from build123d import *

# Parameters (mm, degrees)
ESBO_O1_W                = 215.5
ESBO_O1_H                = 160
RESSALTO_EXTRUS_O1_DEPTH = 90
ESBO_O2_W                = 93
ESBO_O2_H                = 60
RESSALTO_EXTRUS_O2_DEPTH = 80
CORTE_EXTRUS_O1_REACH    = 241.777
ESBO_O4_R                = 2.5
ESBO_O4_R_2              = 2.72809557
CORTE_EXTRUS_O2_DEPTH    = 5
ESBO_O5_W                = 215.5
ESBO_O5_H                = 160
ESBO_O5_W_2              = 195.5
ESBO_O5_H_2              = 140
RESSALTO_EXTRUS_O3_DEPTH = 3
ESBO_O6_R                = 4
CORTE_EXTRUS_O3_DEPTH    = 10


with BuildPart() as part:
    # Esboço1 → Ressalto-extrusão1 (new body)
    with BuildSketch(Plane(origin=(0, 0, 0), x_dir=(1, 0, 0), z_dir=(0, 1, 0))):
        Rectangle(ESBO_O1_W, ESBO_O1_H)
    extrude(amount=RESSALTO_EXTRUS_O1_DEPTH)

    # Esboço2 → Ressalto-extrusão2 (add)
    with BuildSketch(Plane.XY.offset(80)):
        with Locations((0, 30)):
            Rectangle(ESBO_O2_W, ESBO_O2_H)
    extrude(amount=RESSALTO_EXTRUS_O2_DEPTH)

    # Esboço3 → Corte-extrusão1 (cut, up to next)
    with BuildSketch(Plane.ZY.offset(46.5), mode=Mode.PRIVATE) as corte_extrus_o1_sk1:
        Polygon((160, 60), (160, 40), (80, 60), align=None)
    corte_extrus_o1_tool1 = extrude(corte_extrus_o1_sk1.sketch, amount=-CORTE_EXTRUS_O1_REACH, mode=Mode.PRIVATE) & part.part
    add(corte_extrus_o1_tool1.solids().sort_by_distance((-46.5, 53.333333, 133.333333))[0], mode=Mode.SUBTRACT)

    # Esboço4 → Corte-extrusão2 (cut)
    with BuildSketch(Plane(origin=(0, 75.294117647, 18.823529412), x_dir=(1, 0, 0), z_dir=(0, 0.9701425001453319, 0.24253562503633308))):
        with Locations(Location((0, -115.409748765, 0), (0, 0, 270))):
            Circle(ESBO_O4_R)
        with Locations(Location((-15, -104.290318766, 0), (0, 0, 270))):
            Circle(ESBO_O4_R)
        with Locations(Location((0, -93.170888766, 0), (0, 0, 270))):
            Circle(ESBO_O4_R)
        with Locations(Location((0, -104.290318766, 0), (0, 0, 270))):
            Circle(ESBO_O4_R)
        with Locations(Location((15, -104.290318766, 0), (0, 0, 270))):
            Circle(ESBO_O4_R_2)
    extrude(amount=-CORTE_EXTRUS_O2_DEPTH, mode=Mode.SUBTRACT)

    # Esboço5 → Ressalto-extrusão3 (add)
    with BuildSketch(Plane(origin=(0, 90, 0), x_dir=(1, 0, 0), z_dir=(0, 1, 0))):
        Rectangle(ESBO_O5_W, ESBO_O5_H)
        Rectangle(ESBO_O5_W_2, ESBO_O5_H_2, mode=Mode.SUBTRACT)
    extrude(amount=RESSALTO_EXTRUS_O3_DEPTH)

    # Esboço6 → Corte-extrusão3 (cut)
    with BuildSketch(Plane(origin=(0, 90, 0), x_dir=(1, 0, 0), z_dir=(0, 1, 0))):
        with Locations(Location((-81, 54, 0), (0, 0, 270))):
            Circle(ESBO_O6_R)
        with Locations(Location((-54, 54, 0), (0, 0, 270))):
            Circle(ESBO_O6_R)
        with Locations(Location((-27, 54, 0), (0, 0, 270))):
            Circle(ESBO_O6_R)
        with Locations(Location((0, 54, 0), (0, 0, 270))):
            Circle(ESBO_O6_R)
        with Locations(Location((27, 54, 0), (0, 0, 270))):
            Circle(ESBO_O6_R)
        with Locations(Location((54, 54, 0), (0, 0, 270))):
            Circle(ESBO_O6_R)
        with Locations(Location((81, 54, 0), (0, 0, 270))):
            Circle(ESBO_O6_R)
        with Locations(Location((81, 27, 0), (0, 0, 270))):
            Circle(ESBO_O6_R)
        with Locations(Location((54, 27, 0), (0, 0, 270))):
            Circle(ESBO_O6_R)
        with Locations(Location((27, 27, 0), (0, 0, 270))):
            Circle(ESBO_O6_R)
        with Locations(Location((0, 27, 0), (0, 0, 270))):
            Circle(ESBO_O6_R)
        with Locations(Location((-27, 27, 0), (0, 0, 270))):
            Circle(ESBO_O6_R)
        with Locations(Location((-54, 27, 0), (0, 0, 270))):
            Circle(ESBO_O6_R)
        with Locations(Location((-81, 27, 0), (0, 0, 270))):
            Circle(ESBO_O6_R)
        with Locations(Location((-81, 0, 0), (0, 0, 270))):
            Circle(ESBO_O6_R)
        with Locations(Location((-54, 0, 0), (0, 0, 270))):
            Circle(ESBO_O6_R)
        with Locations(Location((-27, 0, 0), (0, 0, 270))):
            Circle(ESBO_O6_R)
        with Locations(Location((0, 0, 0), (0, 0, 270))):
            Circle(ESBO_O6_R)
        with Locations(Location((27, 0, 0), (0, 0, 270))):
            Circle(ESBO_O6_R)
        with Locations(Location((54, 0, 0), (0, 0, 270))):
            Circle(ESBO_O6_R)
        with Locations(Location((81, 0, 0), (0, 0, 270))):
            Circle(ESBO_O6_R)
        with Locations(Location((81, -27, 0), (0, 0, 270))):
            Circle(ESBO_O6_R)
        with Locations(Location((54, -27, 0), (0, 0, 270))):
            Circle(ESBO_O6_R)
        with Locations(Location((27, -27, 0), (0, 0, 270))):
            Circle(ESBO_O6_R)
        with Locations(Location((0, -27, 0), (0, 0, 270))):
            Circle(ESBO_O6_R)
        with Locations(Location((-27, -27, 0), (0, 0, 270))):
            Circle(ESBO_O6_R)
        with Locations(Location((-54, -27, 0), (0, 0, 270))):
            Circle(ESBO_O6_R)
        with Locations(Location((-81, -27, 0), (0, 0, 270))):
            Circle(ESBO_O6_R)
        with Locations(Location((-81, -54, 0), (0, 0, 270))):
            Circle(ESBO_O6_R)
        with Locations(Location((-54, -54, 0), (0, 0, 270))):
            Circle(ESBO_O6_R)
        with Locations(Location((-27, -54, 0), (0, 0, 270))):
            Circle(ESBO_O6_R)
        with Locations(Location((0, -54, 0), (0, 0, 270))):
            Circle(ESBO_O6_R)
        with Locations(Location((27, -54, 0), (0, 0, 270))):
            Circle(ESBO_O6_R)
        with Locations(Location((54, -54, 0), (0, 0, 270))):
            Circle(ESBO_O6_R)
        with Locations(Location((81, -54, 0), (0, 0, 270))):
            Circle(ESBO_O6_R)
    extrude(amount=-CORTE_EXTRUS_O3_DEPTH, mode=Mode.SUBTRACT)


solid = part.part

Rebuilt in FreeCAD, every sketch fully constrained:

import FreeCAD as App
import Part
import Sketcher
Q = App.Units.Quantity


def add_polygon(sketch, points):
    """Adds a closed chain of lines whose ends are joined by coincident constraints."""
    first, n = sketch.GeometryCount, len(points)
    for a, b in zip(points, points[1:] + points[:1]):
        sketch.addGeometry(Part.LineSegment(App.Vector(*a, 0), App.Vector(*b, 0)), False)
    for i in range(n):
        sketch.addConstraint(Sketcher.Constraint("Coincident", first + i, 2, first + (i + 1) % n, 1))

doc = App.newDocument("Part")
body = doc.addObject("PartDesign::Body", "Body")

sketch1 = body.newObject("Sketcher::SketchObject", "Sketch")
sketch1.AttachmentSupport = (doc.getObject("XZ_Plane"), [""])
sketch1.MapMode = "FlatFace"
add_polygon(sketch1, [(-108, -80), (-108, 80), (108, 80), (108, -80)])
sketch1.addConstraint([
    Sketcher.Constraint("Vertical", 0),
    Sketcher.Constraint("Horizontal", 1),
    Sketcher.Constraint("Vertical", 2),
    Sketcher.Constraint("Horizontal", 3),
    Sketcher.Constraint("Symmetric", 0, 2, 2, 2, -1, 1),
    Sketcher.Constraint("DistanceY", 0, 1, 0, 2, Q("160 mm")),
    Sketcher.Constraint("DistanceX", 1, 1, 1, 2, Q("215.5 mm")),
])
pad1 = body.newObject("PartDesign::Pad", "Pad")
pad1.Profile = sketch1
pad1.Length = 90
pad1.Reversed = True

sketch2 = body.newObject("Sketcher::SketchObject", "Sketch001")
sketch2.AttachmentSupport = (doc.getObject("XY_Plane"), [""])
sketch2.MapMode = "FlatFace"
sketch2.AttachmentOffset = App.Placement(App.Vector(0, 0, 80), App.Rotation())
add_polygon(sketch2, [(-46, 60), (-46, 0), (46, 0), (46, 60)])
sketch2.addConstraint([
    Sketcher.Constraint("Vertical", 0),
    Sketcher.Constraint("Horizontal", 1),
    Sketcher.Constraint("Vertical", 2),
    Sketcher.Constraint("Horizontal", 3),
    Sketcher.Constraint("Symmetric", 0, 2, 1, 2, -1, 1),
    Sketcher.Constraint("DistanceX", 1, 1, 1, 2, Q("93 mm")),
    Sketcher.Constraint("DistanceY", 0, 2, 0, 1, Q("60 mm")),
])
pad2 = body.newObject("PartDesign::Pad", "Pad001")
pad2.Profile = sketch2
pad2.Length = 80

sketch3 = body.newObject("Sketcher::SketchObject", "Sketch002")
sketch3.AttachmentSupport = (doc.getObject("YZ_Plane"), [""])
sketch3.MapMode = "FlatFace"
sketch3.AttachmentOffset = App.Placement(App.Vector(0, 0, -46.5), App.Rotation())
add_polygon(sketch3, [(40, 160), (60, 160), (60, 80)])
sketch3.addConstraint([
    Sketcher.Constraint("Horizontal", 0),
    Sketcher.Constraint("Vertical", 1),
    Sketcher.Constraint("DistanceX", 0, 1, 0, 2, Q("20 mm")),
    Sketcher.Constraint("DistanceY", 1, 2, 1, 1, Q("80 mm")),
    Sketcher.Constraint("DistanceX", -1, 1, 0, 2, Q("60 mm")),
    Sketcher.Constraint("DistanceY", -1, 1, 0, 2, Q("160 mm")),
])
pocket1 = body.newObject("PartDesign::Pocket", "Pocket")
pocket1.Profile = sketch3
pocket1.Type = "UpToFirst"
pocket1.Reversed = True

sketch4 = body.newObject("Sketcher::SketchObject", "Sketch003")
sketch4.Placement = App.Placement(App.Vector(0, 75.294118, 18.823529), App.Rotation(App.Vector(1, 0, 0), App.Vector(0, 0.242535625, -0.9701425), App.Vector(0, 0.9701425, 0.242535625), "ZXY"))
sketch4.addGeometry([
    Part.Circle(App.Vector(0, -115.4, 0), App.Vector(0, 0, 1), 2.5),
    Part.Circle(App.Vector(-15, -104.3, 0), App.Vector(0, 0, 1), 2.5),
    Part.Circle(App.Vector(0, -93.2, 0), App.Vector(0, 0, 1), 2.5),
    Part.Circle(App.Vector(0, -104.3, 0), App.Vector(0, 0, 1), 2.5),
    Part.Circle(App.Vector(15, -104.3, 0), App.Vector(0, 0, 1), 2.7),
], False)
sketch4.addConstraint([
    Sketcher.Constraint("Equal", 0, 1),
    Sketcher.Constraint("Equal", 1, 2),
    Sketcher.Constraint("Equal", 2, 3),
    Sketcher.Constraint("Symmetric", 1, 3, 4, 3, -2),
    Sketcher.Constraint("PointOnObject", 0, 3, -2),
    Sketcher.Constraint("PointOnObject", 2, 3, -2),
    Sketcher.Constraint("PointOnObject", 3, 3, -2),
    Sketcher.Constraint("Horizontal", 1, 3, 3, 3),
    Sketcher.Constraint("Diameter", 0, Q("5 mm")),
    Sketcher.Constraint("DistanceX", 1, 3, -1, 1, Q("15 mm")),
    Sketcher.Constraint("Diameter", 4, Q("5.456191 mm")),
    Sketcher.Constraint("DistanceY", 0, 3, -1, 1, Q("115.409749 mm")),
    Sketcher.Constraint("DistanceY", 1, 3, -1, 1, Q("104.290319 mm")),
    Sketcher.Constraint("DistanceY", 2, 3, -1, 1, Q("93.170889 mm")),
])
pocket2 = body.newObject("PartDesign::Pocket", "Pocket001")
pocket2.Profile = sketch4
pocket2.Length = 5

sketch5 = body.newObject("Sketcher::SketchObject", "Sketch004")
sketch5.AttachmentSupport = (doc.getObject("XZ_Plane"), [""])
sketch5.MapMode = "FlatFace"
sketch5.AttachmentOffset = App.Placement(App.Vector(0, 0, -90), App.Rotation())
add_polygon(sketch5, [(-108, -80), (-108, 80), (108, 80), (108, -80)])
add_polygon(sketch5, [(98, 70), (-98, 70), (-98, -70), (98, -70)])
sketch5.addConstraint([
    Sketcher.Constraint("Vertical", 0),
    Sketcher.Constraint("Horizontal", 1),
    Sketcher.Constraint("Vertical", 2),
    Sketcher.Constraint("Horizontal", 3),
    Sketcher.Constraint("Horizontal", 4),
    Sketcher.Constraint("Vertical", 5),
    Sketcher.Constraint("Horizontal", 6),
    Sketcher.Constraint("Vertical", 7),
    Sketcher.Constraint("Symmetric", 0, 2, 2, 2, -1, 1),
    Sketcher.Constraint("Symmetric", 4, 2, 6, 2, -1, 1),
    Sketcher.Constraint("DistanceY", 0, 1, 0, 2, Q("160 mm")),
    Sketcher.Constraint("DistanceY", 5, 2, 5, 1, Q("140 mm")),
    Sketcher.Constraint("DistanceX", 1, 1, 1, 2, Q("215.5 mm")),
    Sketcher.Constraint("DistanceX", 4, 2, 4, 1, Q("195.5 mm")),
])
pad3 = body.newObject("PartDesign::Pad", "Pad002")
pad3.Profile = sketch5
pad3.Length = 3
pad3.Reversed = True

sketch6 = body.newObject("Sketcher::SketchObject", "Sketch005")
sketch6.AttachmentSupport = (doc.getObject("XZ_Plane"), [""])
sketch6.MapMode = "FlatFace"
sketch6.AttachmentOffset = App.Placement(App.Vector(0, 0, -90), App.Rotation())
sketch6.addGeometry([
    Part.Circle(App.Vector(-81, -54, 0), App.Vector(0, 0, 1), 4),
    Part.Circle(App.Vector(-54, -54, 0), App.Vector(0, 0, 1), 4),
    Part.Circle(App.Vector(-27, -54, 0), App.Vector(0, 0, 1), 4),
    Part.Circle(App.Vector(0, -54, 0), App.Vector(0, 0, 1), 4),
    Part.Circle(App.Vector(27, -54, 0), App.Vector(0, 0, 1), 4),
    Part.Circle(App.Vector(54, -54, 0), App.Vector(0, 0, 1), 4),
    Part.Circle(App.Vector(81, -54, 0), App.Vector(0, 0, 1), 4),
    Part.Circle(App.Vector(81, -27, 0), App.Vector(0, 0, 1), 4),
    Part.Circle(App.Vector(54, -27, 0), App.Vector(0, 0, 1), 4),
    Part.Circle(App.Vector(27, -27, 0), App.Vector(0, 0, 1), 4),
    Part.Circle(App.Vector(0, -27, 0), App.Vector(0, 0, 1), 4),
    Part.Circle(App.Vector(-27, -27, 0), App.Vector(0, 0, 1), 4),
    Part.Circle(App.Vector(-54, -27, 0), App.Vector(0, 0, 1), 4),
    Part.Circle(App.Vector(-81, -27, 0), App.Vector(0, 0, 1), 4),
    Part.Circle(App.Vector(-81, 0, 0), App.Vector(0, 0, 1), 4),
    Part.Circle(App.Vector(-54, 0, 0), App.Vector(0, 0, 1), 4),
    Part.Circle(App.Vector(-27, 0, 0), App.Vector(0, 0, 1), 4),
    Part.Circle(App.Vector(0, 0, 0), App.Vector(0, 0, 1), 4),
    Part.Circle(App.Vector(27, 0, 0), App.Vector(0, 0, 1), 4),
    Part.Circle(App.Vector(54, 0, 0), App.Vector(0, 0, 1), 4),
    Part.Circle(App.Vector(81, 0, 0), App.Vector(0, 0, 1), 4),
    Part.Circle(App.Vector(81, 27, 0), App.Vector(0, 0, 1), 4),
    Part.Circle(App.Vector(54, 27, 0), App.Vector(0, 0, 1), 4),
    Part.Circle(App.Vector(27, 27, 0), App.Vector(0, 0, 1), 4),
    Part.Circle(App.Vector(0, 27, 0), App.Vector(0, 0, 1), 4),
    Part.Circle(App.Vector(-27, 27, 0), App.Vector(0, 0, 1), 4),
    Part.Circle(App.Vector(-54, 27, 0), App.Vector(0, 0, 1), 4),
    Part.Circle(App.Vector(-81, 27, 0), App.Vector(0, 0, 1), 4),
    Part.Circle(App.Vector(-81, 54, 0), App.Vector(0, 0, 1), 4),
    Part.Circle(App.Vector(-54, 54, 0), App.Vector(0, 0, 1), 4),
    Part.Circle(App.Vector(-27, 54, 0), App.Vector(0, 0, 1), 4),
    Part.Circle(App.Vector(0, 54, 0), App.Vector(0, 0, 1), 4),
    Part.Circle(App.Vector(27, 54, 0), App.Vector(0, 0, 1), 4),
    Part.Circle(App.Vector(54, 54, 0), App.Vector(0, 0, 1), 4),
    Part.Circle(App.Vector(81, 54, 0), App.Vector(0, 0, 1), 4),
], False)
sketch6.addConstraint([
    Sketcher.Constraint("Coincident", 17, 3, -1, 1),
    Sketcher.Constraint("Equal", 0, 1),
    Sketcher.Constraint("Equal", 1, 2),
    Sketcher.Constraint("Equal", 2, 3),
    Sketcher.Constraint("Equal", 3, 4),
    Sketcher.Constraint("Equal", 4, 5),
    Sketcher.Constraint("Equal", 5, 6),
    Sketcher.Constraint("Equal", 6, 7),
    Sketcher.Constraint("Equal", 7, 8),
    Sketcher.Constraint("Equal", 8, 9),
    Sketcher.Constraint("Equal", 9, 10),
    Sketcher.Constraint("Equal", 10, 11),
    Sketcher.Constraint("Equal", 11, 12),
    Sketcher.Constraint("Equal", 12, 13),
    Sketcher.Constraint("Equal", 13, 14),
    Sketcher.Constraint("Equal", 14, 15),
    Sketcher.Constraint("Equal", 15, 16),
    Sketcher.Constraint("Equal", 16, 17),
    Sketcher.Constraint("Equal", 17, 18),
    Sketcher.Constraint("Equal", 18, 19),
    Sketcher.Constraint("Equal", 19, 20),
    Sketcher.Constraint("Equal", 20, 21),
    Sketcher.Constraint("Equal", 21, 22),
    Sketcher.Constraint("Equal", 22, 23),
    Sketcher.Constraint("Equal", 23, 24),
    Sketcher.Constraint("Equal", 24, 25),
    Sketcher.Constraint("Equal", 25, 26),
    Sketcher.Constraint("Equal", 26, 27),
    Sketcher.Constraint("Equal", 27, 28),
    Sketcher.Constraint("Equal", 28, 29),
    Sketcher.Constraint("Equal", 29, 30),
    Sketcher.Constraint("Equal", 30, 31),
    Sketcher.Constraint("Equal", 31, 32),
    Sketcher.Constraint("Equal", 32, 33),
    Sketcher.Constraint("Equal", 33, 34),
    Sketcher.Constraint("Symmetric", 16, 3, 18, 3, -1, 1),
    Sketcher.Constraint("Symmetric", 15, 3, 19, 3, -1, 1),
    Sketcher.Constraint("Symmetric", 14, 3, 20, 3, -1, 1),
    Sketcher.Constraint("Symmetric", 13, 3, 21, 3, -1, 1),
    Sketcher.Constraint("Symmetric", 12, 3, 22, 3, -1, 1),
    Sketcher.Constraint("Symmetric", 11, 3, 23, 3, -1, 1),
    Sketcher.Constraint("Symmetric", 10, 3, 24, 3, -1, 1),
    Sketcher.Constraint("Symmetric", 9, 3, 25, 3, -1, 1),
    Sketcher.Constraint("Symmetric", 8, 3, 26, 3, -1, 1),
    Sketcher.Constraint("Symmetric", 7, 3, 27, 3, -1, 1),
    Sketcher.Constraint("Symmetric", 6, 3, 28, 3, -1, 1),
    Sketcher.Constraint("Symmetric", 5, 3, 29, 3, -1, 1),
    Sketcher.Constraint("Symmetric", 4, 3, 30, 3, -1, 1),
    Sketcher.Constraint("Symmetric", 3, 3, 31, 3, -1, 1),
    Sketcher.Constraint("Symmetric", 2, 3, 32, 3, -1, 1),
    Sketcher.Constraint("Symmetric", 1, 3, 33, 3, -1, 1),
    Sketcher.Constraint("Symmetric", 0, 3, 34, 3, -1, 1),
    Sketcher.Constraint("Symmetric", 2, 3, 4, 3, -2),
    Sketcher.Constraint("Symmetric", 1, 3, 5, 3, -2),
    Sketcher.Constraint("Symmetric", 0, 3, 6, 3, -2),
    Sketcher.Constraint("Symmetric", 9, 3, 11, 3, -2),
    Sketcher.Constraint("Symmetric", 8, 3, 12, 3, -2),
    Sketcher.Constraint("Symmetric", 7, 3, 13, 3, -2),
    Sketcher.Constraint("PointOnObject", 3, 3, -2),
    Sketcher.Constraint("PointOnObject", 10, 3, -2),
    Sketcher.Constraint("PointOnObject", 14, 3, -1),
    Sketcher.Constraint("PointOnObject", 15, 3, -1),
    Sketcher.Constraint("PointOnObject", 16, 3, -1),
    Sketcher.Constraint("Horizontal", 0, 3, 1, 3),
    Sketcher.Constraint("Horizontal", 1, 3, 2, 3),
    Sketcher.Constraint("Horizontal", 2, 3, 3, 3),
    Sketcher.Constraint("Horizontal", 7, 3, 8, 3),
    Sketcher.Constraint("Horizontal", 8, 3, 9, 3),
    Sketcher.Constraint("Horizontal", 9, 3, 10, 3),
    Sketcher.Constraint("Vertical", 6, 3, 7, 3),
    Sketcher.Constraint("Vertical", 5, 3, 8, 3),
    Sketcher.Constraint("Vertical", 4, 3, 9, 3),
    Sketcher.Constraint("Vertical", 13, 3, 14, 3),
    Sketcher.Constraint("Vertical", 12, 3, 15, 3),
    Sketcher.Constraint("Vertical", 11, 3, 16, 3),
    Sketcher.Constraint("Diameter", 0, Q("8 mm")),
    Sketcher.Constraint("DistanceX", 0, 3, -1, 1, Q("81 mm")),
    Sketcher.Constraint("DistanceY", 0, 3, -1, 1, Q("54 mm")),
    Sketcher.Constraint("DistanceX", 1, 3, -1, 1, Q("54 mm")),
    Sketcher.Constraint("DistanceX", 2, 3, -1, 1, Q("27 mm")),
    Sketcher.Constraint("DistanceY", 7, 3, -1, 1, Q("27 mm")),
])
pocket3 = body.newObject("PartDesign::Pocket", "Pocket002")
pocket3.Profile = sketch6
pocket3.Length = 10
pocket3.Reversed = True

doc.recompute()
